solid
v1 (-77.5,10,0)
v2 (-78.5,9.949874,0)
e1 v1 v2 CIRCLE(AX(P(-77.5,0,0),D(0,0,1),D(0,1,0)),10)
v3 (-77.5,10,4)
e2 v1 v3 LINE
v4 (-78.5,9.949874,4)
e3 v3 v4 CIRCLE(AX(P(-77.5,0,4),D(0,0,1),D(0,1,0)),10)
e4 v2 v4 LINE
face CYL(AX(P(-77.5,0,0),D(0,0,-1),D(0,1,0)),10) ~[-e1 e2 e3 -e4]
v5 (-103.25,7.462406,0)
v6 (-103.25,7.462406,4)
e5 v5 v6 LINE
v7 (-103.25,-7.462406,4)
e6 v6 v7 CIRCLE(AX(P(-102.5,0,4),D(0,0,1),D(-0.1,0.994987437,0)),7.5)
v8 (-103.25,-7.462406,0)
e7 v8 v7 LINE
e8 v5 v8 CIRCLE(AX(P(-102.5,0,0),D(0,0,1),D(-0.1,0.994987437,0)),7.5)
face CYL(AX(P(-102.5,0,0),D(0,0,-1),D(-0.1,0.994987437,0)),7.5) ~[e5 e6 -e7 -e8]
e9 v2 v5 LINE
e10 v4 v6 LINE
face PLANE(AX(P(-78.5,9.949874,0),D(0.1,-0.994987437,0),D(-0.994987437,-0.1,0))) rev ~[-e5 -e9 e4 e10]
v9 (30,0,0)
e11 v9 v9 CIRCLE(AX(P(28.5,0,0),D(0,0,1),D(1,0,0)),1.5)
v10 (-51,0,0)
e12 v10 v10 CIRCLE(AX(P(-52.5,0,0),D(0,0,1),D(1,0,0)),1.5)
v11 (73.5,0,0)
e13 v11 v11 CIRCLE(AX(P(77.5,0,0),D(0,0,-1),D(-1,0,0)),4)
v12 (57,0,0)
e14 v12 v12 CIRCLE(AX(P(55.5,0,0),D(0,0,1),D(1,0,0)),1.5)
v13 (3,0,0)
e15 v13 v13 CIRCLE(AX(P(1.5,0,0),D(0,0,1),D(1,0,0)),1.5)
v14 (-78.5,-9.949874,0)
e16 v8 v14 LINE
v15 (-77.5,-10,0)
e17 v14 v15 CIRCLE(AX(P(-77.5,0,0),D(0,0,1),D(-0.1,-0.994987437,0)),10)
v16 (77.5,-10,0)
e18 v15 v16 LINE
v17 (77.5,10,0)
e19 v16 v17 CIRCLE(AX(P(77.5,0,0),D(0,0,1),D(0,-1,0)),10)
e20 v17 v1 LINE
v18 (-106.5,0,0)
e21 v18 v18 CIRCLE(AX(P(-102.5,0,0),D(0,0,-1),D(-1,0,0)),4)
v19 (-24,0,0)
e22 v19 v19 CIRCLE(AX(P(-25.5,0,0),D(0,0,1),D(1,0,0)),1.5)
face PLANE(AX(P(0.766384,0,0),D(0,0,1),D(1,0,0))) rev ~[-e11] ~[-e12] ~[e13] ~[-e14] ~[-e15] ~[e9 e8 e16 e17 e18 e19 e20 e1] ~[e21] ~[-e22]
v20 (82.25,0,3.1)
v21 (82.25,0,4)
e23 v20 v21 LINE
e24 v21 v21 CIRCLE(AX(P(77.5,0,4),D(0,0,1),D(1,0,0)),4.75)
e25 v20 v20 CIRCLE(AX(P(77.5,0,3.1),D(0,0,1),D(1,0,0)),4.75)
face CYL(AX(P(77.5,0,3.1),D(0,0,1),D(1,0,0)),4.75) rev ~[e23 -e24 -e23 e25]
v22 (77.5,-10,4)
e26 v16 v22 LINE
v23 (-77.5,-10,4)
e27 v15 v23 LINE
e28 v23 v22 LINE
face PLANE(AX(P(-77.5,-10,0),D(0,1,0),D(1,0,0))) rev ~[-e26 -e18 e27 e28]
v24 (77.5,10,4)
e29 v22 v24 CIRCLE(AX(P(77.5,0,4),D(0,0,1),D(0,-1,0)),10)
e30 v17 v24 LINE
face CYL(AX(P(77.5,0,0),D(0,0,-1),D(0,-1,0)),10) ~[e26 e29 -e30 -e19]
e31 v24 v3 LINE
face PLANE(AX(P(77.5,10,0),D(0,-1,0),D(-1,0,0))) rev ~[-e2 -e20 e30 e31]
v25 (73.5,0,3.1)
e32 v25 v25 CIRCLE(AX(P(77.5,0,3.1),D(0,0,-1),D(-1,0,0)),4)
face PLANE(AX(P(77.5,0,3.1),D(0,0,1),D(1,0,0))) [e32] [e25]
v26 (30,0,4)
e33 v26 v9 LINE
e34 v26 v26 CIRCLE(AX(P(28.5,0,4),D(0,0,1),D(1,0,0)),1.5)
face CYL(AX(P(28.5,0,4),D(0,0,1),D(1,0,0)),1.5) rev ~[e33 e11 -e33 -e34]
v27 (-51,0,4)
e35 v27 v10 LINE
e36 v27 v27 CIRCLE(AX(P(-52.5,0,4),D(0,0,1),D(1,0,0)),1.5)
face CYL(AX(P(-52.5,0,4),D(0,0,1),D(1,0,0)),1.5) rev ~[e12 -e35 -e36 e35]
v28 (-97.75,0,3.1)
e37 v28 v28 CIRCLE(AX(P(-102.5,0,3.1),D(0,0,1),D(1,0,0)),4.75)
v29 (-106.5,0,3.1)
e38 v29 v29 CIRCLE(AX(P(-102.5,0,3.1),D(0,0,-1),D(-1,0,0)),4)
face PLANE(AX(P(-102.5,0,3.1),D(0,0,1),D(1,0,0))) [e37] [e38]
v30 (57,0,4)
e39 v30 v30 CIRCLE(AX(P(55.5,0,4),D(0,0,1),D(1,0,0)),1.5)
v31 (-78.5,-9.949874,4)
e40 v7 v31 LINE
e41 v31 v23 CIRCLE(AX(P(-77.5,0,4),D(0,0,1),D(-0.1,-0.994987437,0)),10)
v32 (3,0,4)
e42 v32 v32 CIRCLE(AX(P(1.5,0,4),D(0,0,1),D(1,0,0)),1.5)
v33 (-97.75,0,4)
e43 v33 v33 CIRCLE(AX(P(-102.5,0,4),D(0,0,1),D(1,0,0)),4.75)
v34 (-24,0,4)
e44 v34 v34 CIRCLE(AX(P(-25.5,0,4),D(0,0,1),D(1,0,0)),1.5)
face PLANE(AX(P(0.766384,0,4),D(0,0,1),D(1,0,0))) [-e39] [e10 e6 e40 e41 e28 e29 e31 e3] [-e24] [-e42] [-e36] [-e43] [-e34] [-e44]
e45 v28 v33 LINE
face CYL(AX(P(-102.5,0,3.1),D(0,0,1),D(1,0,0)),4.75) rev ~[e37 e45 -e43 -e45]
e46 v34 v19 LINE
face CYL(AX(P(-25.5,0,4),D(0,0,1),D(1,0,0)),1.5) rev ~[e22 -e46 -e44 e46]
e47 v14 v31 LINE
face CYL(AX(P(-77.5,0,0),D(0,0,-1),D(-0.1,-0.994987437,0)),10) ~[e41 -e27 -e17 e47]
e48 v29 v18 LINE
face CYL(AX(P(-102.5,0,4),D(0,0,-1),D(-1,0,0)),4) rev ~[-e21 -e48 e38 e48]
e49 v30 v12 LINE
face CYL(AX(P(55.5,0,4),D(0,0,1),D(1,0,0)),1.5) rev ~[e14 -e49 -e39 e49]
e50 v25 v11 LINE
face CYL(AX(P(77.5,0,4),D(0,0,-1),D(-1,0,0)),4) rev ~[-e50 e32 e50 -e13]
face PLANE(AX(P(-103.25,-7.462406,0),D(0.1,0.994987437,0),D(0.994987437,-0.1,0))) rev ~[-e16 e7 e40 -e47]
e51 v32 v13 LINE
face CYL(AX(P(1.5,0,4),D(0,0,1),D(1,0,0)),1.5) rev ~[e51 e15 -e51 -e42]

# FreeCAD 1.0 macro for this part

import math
import FreeCAD as App
import Part
import Sketcher

V = App.Vector
Q = App.Units.Quantity

doc = App.newDocument("Part")
body = doc.addObject("PartDesign::Body", "Body")

# Sketch on XY plane
sketch1 = doc.addObject("Sketcher::SketchObject", "Sketch")
body.addObject(sketch1)
sketch1.AttachmentSupport = (doc.XY_Plane, [""])
sketch1.MapMode = "FlatFace"
sketch1.addGeometry([
    Part.LineSegment(V(77.5, 10, 0), V(-77.5, 10, 0)),  # 0
    Part.ArcOfCircle(Part.Circle(V(-77.5, 0, 0), V(0, 0, 1), 10), math.radians(90), math.radians(95.73917)),  # 1
    Part.LineSegment(V(-78.5, 9.949874, 0), V(-103.25, 7.462406, 0)),  # 2
    Part.ArcOfCircle(Part.Circle(V(-102.5, 0, 0), V(0, 0, 1), 7.5), math.radians(95.73917), math.radians(264.26083)),  # 3
    Part.LineSegment(V(-103.25, -7.462406, 0), V(-78.5, -9.949874, 0)),  # 4
    Part.ArcOfCircle(Part.Circle(V(-77.5, 0, 0), V(0, 0, 1), 10), math.radians(-95.73917), math.radians(-90)),  # 5
    Part.LineSegment(V(-77.5, -10, 0), V(77.5, -10, 0)),  # 6
    Part.ArcOfCircle(Part.Circle(V(77.5, 0, 0), V(0, 0, 1), 10), math.radians(-90), math.radians(90)),  # 7
], False)
sketch1.addConstraint([
    Sketcher.Constraint("Tangent", 0, 2, 1, 1),
    Sketcher.Constraint("Tangent", 1, 2, 2, 1),
    Sketcher.Constraint("Tangent", 2, 2, 3, 1),
    Sketcher.Constraint("Tangent", 3, 2, 4, 1),
    Sketcher.Constraint("Tangent", 4, 2, 5, 1),
    Sketcher.Constraint("Tangent", 5, 2, 6, 1),
    Sketcher.Constraint("Tangent", 6, 2, 7, 1),
    Sketcher.Constraint("Tangent", 7, 2, 0, 1),
    Sketcher.Constraint("Horizontal", 0),
    Sketcher.Constraint("Horizontal", 6),
    Sketcher.Constraint("Coincident", 5, 3, 1, 3),
    Sketcher.Constraint("Equal", 1, 5),
    Sketcher.Constraint("Symmetric", 1, 3, 7, 3, -1, 1),
    Sketcher.Constraint("PointOnObject", 3, 3, -1),
    Sketcher.Constraint("Radius", 1, Q("10 mm")),
    Sketcher.Constraint("Radius", 3, Q("7.5 mm")),
    Sketcher.Constraint("DistanceX", 0, 2, 0, 1, Q("155 mm")),
    Sketcher.Constraint("DistanceX", 3, 3, 1, 3, Q("25 mm")),
])
pad1 = doc.addObject("PartDesign::Pad", "Pad")
body.addObject(pad1)
pad1.Profile = sketch1
pad1.Length = 4

# Sketch on XY plane
sketch2 = doc.addObject("Sketcher::SketchObject", "Sketch001")
body.addObject(sketch2)
sketch2.AttachmentSupport = (doc.XY_Plane, [""])
sketch2.MapMode = "FlatFace"
sketch2.AttachmentOffset = App.Placement(V(0, 0, 4), App.Rotation())
sketch2.addGeometry([
    Part.Circle(V(-102.5, 0, 0), V(0, 0, 1), 4),
    Part.Circle(V(77.5, 0, 0), V(0, 0, 1), 4),
], False)
sketch2.addConstraint([
    Sketcher.Constraint("Equal", 0, 1),
    Sketcher.Constraint("PointOnObject", 0, 3, -1),
    Sketcher.Constraint("PointOnObject", 1, 3, -1),
    Sketcher.Constraint("Diameter", 0, Q("8 mm")),
    Sketcher.Constraint("DistanceX", 0, 3, 1, 3, Q("180 mm")),
    Sketcher.Constraint("DistanceX", 0, 3, -1, 1, Q("102.5 mm")),
])
doc.recompute()
hole = doc.addObject("PartDesign::Hole", "Hole")
body.addObject(hole)
hole.Profile = sketch2
hole.ThreadType = "None"
hole.Diameter = 8
hole.DepthType = "ThroughAll"
hole.HoleCutType = "Counterbore"
hole.HoleCutDiameter = 9.5
hole.HoleCutDepth = 0.9

# Sketch on XY plane
sketch3 = doc.addObject("Sketcher::SketchObject", "Sketch002")
body.addObject(sketch3)
sketch3.AttachmentSupport = (doc.XY_Plane, [""])
sketch3.MapMode = "FlatFace"
sketch3.AttachmentOffset = App.Placement(V(0, 0, 4), App.Rotation())
sketch3.addGeometry([
    Part.Circle(V(-52.5, 0, 0), V(0, 0, 1), 1.5),  # 0
    Part.Circle(V(-25.5, 0, 0), V(0, 0, 1), 1.5),  # 1
    Part.Circle(V(1.5, 0, 0), V(0, 0, 1), 1.5),  # 2
    Part.Circle(V(28.5, 0, 0), V(0, 0, 1), 1.5),  # 3
    Part.Circle(V(55.5, 0, 0), V(0, 0, 1), 1.5),  # 4
], False)
sketch3.addConstraint([
    Sketcher.Constraint("Equal", 0, 1),
    Sketcher.Constraint("Equal", 1, 2),
    Sketcher.Constraint("Equal", 2, 3),
    Sketcher.Constraint("Equal", 3, 4),
    Sketcher.Constraint("PointOnObject", 0, 3, -1),
    Sketcher.Constraint("PointOnObject", 1, 3, -1),
    Sketcher.Constraint("PointOnObject", 2, 3, -1),
    Sketcher.Constraint("PointOnObject", 3, 3, -1),
    Sketcher.Constraint("PointOnObject", 4, 3, -1),
    Sketcher.Constraint("Diameter", 0, Q("3 mm")),
    Sketcher.Constraint("DistanceX", 0, 3, 1, 3, Q("27 mm")),
    Sketcher.Constraint("DistanceX", 1, 3, 2, 3, Q("27 mm")),
    Sketcher.Constraint("DistanceX", 2, 3, 3, 3, Q("27 mm")),
    Sketcher.Constraint("DistanceX", 3, 3, 4, 3, Q("27 mm")),
    Sketcher.Constraint("DistanceX", 0, 3, -1, 1, Q("52.5 mm")),
])
pocket1 = doc.addObject("PartDesign::Pocket", "Pocket")
body.addObject(pocket1)
pocket1.Profile = sketch3
pocket1.Type = "ThroughAll"
pocket1.Midplane = True

doc.recompute()
